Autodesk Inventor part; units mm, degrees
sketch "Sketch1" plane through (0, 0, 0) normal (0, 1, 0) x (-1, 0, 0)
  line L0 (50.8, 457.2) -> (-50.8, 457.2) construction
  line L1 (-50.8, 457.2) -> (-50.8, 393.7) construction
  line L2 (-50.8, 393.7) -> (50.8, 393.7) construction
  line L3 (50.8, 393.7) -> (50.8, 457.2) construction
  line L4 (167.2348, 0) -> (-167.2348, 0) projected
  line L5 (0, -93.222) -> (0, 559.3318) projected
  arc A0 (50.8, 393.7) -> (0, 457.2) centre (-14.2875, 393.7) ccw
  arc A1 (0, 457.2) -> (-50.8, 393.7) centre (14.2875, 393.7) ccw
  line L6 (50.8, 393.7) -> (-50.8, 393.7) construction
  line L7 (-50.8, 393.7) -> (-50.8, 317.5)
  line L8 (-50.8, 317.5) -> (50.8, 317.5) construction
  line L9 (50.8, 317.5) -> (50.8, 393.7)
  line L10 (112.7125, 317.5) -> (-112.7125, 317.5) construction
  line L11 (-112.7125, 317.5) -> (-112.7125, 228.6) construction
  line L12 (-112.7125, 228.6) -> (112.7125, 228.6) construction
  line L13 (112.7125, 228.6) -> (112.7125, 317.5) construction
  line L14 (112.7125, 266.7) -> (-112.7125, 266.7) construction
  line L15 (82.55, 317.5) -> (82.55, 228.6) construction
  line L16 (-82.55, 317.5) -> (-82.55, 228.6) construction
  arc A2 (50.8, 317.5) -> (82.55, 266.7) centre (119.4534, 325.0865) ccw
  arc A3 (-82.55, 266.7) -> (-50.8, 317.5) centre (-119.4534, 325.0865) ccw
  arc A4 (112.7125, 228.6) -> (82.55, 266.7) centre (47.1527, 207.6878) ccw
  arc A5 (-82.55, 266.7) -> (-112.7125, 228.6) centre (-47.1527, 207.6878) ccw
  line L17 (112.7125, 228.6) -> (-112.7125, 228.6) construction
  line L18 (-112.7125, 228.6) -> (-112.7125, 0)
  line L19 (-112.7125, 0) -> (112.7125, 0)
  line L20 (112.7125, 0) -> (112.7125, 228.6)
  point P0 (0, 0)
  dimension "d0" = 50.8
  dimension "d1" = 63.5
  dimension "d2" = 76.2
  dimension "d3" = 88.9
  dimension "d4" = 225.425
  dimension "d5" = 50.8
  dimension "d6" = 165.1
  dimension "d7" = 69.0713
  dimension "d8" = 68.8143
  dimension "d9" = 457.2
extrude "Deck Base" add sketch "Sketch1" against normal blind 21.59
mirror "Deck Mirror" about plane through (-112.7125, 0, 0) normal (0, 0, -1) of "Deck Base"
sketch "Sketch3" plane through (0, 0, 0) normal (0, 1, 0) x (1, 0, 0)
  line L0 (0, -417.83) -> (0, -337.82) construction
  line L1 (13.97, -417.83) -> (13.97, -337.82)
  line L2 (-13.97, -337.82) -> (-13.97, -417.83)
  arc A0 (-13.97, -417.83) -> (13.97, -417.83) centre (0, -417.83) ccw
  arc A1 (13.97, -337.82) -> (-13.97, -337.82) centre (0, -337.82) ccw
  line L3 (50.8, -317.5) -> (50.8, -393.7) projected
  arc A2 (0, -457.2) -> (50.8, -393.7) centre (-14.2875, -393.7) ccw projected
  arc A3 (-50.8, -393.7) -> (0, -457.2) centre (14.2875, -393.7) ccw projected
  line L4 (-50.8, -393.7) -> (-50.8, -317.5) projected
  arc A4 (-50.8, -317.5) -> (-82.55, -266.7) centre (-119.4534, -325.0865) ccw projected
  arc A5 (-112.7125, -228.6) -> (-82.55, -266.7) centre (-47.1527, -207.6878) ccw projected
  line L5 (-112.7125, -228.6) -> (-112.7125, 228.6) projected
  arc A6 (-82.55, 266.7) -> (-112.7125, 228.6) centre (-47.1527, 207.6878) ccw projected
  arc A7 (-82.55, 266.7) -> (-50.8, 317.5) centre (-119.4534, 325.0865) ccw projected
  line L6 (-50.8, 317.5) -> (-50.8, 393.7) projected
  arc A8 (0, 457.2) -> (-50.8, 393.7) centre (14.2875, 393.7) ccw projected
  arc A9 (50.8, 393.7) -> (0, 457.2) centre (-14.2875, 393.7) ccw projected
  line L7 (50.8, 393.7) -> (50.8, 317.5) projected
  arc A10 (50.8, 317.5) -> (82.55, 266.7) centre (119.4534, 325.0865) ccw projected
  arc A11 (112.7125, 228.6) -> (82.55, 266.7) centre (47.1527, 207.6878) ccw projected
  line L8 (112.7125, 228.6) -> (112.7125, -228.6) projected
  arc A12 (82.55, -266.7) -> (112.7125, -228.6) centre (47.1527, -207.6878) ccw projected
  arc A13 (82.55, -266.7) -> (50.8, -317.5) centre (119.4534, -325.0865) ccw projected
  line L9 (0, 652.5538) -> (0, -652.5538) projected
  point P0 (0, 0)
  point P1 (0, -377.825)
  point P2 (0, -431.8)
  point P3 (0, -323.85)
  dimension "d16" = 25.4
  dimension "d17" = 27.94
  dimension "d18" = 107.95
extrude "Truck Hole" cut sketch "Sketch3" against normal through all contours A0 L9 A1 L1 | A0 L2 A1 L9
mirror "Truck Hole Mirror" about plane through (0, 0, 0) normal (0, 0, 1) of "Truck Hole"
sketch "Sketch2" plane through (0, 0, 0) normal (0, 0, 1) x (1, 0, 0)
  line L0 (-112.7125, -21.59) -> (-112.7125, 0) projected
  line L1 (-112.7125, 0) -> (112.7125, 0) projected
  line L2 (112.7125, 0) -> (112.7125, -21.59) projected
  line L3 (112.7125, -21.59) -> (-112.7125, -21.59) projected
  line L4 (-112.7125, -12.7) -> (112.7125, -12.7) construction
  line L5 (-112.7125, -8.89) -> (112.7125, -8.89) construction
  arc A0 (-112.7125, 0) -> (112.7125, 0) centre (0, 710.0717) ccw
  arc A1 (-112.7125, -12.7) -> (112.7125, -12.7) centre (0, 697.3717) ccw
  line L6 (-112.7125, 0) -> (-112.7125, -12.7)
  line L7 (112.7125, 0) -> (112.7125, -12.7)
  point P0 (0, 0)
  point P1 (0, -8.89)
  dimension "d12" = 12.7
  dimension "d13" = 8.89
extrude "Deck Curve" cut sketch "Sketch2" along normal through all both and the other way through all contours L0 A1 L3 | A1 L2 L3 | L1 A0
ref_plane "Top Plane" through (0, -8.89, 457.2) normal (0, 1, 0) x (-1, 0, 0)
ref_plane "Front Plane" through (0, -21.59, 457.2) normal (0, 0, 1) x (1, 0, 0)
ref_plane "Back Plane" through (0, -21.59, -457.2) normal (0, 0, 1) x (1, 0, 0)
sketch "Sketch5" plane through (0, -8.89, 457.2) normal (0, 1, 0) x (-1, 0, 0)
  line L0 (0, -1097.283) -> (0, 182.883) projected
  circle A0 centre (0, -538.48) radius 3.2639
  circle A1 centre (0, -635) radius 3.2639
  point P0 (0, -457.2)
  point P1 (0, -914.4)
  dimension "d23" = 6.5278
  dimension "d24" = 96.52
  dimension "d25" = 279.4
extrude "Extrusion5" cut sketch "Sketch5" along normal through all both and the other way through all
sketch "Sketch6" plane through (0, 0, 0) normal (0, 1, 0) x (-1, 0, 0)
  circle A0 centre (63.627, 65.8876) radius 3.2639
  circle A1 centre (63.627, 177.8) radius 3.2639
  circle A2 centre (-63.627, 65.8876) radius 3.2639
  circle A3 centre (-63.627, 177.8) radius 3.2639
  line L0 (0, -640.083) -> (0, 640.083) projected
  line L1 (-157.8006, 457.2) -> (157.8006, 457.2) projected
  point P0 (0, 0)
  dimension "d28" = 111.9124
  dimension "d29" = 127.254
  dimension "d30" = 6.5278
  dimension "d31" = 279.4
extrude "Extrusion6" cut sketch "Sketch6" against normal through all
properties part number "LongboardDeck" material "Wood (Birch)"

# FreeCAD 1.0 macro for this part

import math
import FreeCAD as App
import Part
import Sketcher

V = App.Vector
Q = App.Units.Quantity

doc = App.newDocument("Part")
body = doc.addObject("PartDesign::Body", "Body")

# Sketch on XZ plane
sketch1 = doc.addObject("Sketcher::SketchObject", "Sketch")
body.addObject(sketch1)
sketch1.AttachmentSupport = (doc.XZ_Plane, [""])
sketch1.MapMode = "FlatFace"
sketch1.addGeometry(Part.LineSegment(V(-113, 0, 0), V(-113, 229, 0)), False)
sketch1.addGeometry(Part.ArcOfCircle(Part.Circle(V(-47, 208, 0), V(0, 0, 1), 69), math.radians(121), math.radians(162)), False)
sketch1.addGeometry(Part.ArcOfCircle(Part.Circle(V(-119, 325, 0), V(0, 0, 1), 69), math.radians(-58), math.radians(-6)), False)
sketch1.addGeometry(Part.LineSegment(V(-51, 318, 0), V(-51, 394, 0)), False)
sketch1.addGeometry(Part.ArcOfCircle(Part.Circle(V(14, 394, 0), V(0, 0, 1), 65), math.radians(103), math.radians(180)), False)
sketch1.addGeometry(Part.ArcOfCircle(Part.Circle(V(-14, 394, 0), V(0, 0, 1), 65), math.radians(0), math.radians(77)), False)
sketch1.addGeometry(Part.LineSegment(V(51, 394, 0), V(51, 318, 0)), False)
sketch1.addGeometry(Part.ArcOfCircle(Part.Circle(V(119, 325, 0), V(0, 0, 1), 69), math.radians(-174), math.radians(-122)), False)
sketch1.addGeometry(Part.ArcOfCircle(Part.Circle(V(47, 208, 0), V(0, 0, 1), 69), math.radians(18), math.radians(59)), False)
sketch1.addGeometry(Part.LineSegment(V(113, 229, 0), V(113, 0, 0)), False)
sketch1.addGeometry(Part.LineSegment(V(113, 0, 0), V(-113, 0, 0)), False)
sketch1.addConstraint(Sketcher.Constraint("Coincident", 0, 2, 1, 2))
sketch1.addConstraint(Sketcher.Constraint("Coincident", 1, 1, 2, 1))
sketch1.addConstraint(Sketcher.Constraint("Coincident", 2, 2, 3, 1))
sketch1.addConstraint(Sketcher.Constraint("Tangent", 3, 2, 4, 2))
sketch1.addConstraint(Sketcher.Constraint("Coincident", 4, 1, 5, 2))
sketch1.addConstraint(Sketcher.Constraint("Tangent", 5, 1, 6, 1))
sketch1.addConstraint(Sketcher.Constraint("Coincident", 6, 2, 7, 1))
sketch1.addConstraint(Sketcher.Constraint("Coincident", 7, 2, 8, 2))
sketch1.addConstraint(Sketcher.Constraint("Coincident", 8, 1, 9, 1))
sketch1.addConstraint(Sketcher.Constraint("Coincident", 9, 2, 10, 1))
sketch1.addConstraint(Sketcher.Constraint("Coincident", 10, 2, 0, 1))
sketch1.addConstraint(Sketcher.Constraint("Vertical", 0))
sketch1.addConstraint(Sketcher.Constraint("Vertical", 3))
sketch1.addConstraint(Sketcher.Constraint("Vertical", 6))
sketch1.addConstraint(Sketcher.Constraint("Vertical", 9))
sketch1.addConstraint(Sketcher.Constraint("Horizontal", 10))
sketch1.addConstraint(Sketcher.Constraint("Equal", 4, 5))
sketch1.addConstraint(Sketcher.Constraint("Equal", 2, 7))
sketch1.addConstraint(Sketcher.Constraint("Equal", 1, 8))
sketch1.addConstraint(Sketcher.Constraint("Symmetric", 9, 2, 10, 2, -1, 1))
sketch1.addConstraint(Sketcher.Constraint("Symmetric", 4, 3, 5, 3, -2))
sketch1.addConstraint(Sketcher.Constraint("Symmetric", 2, 3, 7, 3, -2))
sketch1.addConstraint(Sketcher.Constraint("Symmetric", 1, 3, 8, 3, -2))
sketch1.addConstraint(Sketcher.Constraint("DistanceY", 3, 1, 3, 2, Q("3 in")))
sketch1.addConstraint(Sketcher.Constraint("DistanceX", 2, 2, -1, 1, Q("2 in")))
sketch1.addConstraint(Sketcher.Constraint("DistanceY", -1, 1, 4, 1, Q("18 in")))
sketch1.addConstraint(Sketcher.Constraint("DistanceY", 1, 1, 2, 2, Q("2 in")))
sketch1.addConstraint(Sketcher.Constraint("DistanceY", 0, 2, 5, 3, Q("6.5 in")))
sketch1.addConstraint(Sketcher.Constraint("DistanceY", 4, 3, 4, 1, Q("2.5 in")))
sketch1.addConstraint(Sketcher.Constraint("DistanceX", 10, 2, 10, 1, Q("8.875 in")))
sketch1.addConstraint(Sketcher.Constraint("Radius", 1, 68.8143))
sketch1.addConstraint(Sketcher.Constraint("Radius", 2, 69.0713))
sketch1.addConstraint(Sketcher.Constraint("DistanceX", 1, 1, -1, 1, Q("3.25 in")))
pad1 = doc.addObject("PartDesign::Pad", "Pad")
body.addObject(pad1)
pad1.Profile = sketch1
pad1.Length = Q("0.85 in")
doc.recompute()

mirrored = doc.addObject("PartDesign::Mirrored", "Mirrored")
body.addObject(mirrored)
mirrored.Originals = [pad1]
mirrored.MirrorPlane = (doc.XY_Plane, [""])
body.Tip = mirrored

# Sketch on XZ plane
sketch2 = doc.addObject("Sketcher::SketchObject", "Sketch001")
body.addObject(sketch2)
sketch2.AttachmentSupport = (doc.XZ_Plane, [""])
sketch2.MapMode = "FlatFace"
sketch2.addGeometry(Part.LineSegment(V(14, 418, 0), V(14, 338, 0)), False)
sketch2.addGeometry(Part.ArcOfCircle(Part.Circle(V(0, 338, 0), V(0, 0, 1), 14), math.radians(180), math.radians(360)), False)
sketch2.addGeometry(Part.LineSegment(V(-14, 338, 0), V(-14, 418, 0)), False)
sketch2.addGeometry(Part.ArcOfCircle(Part.Circle(V(0, 418, 0), V(0, 0, 1), 14), math.radians(0), math.radians(180)), False)
sketch2.addConstraint(Sketcher.Constraint("Tangent", 0, 2, 1, 2))
sketch2.addConstraint(Sketcher.Constraint("Tangent", 1, 1, 2, 1))
sketch2.addConstraint(Sketcher.Constraint("Tangent", 2, 2, 3, 2))
sketch2.addConstraint(Sketcher.Constraint("Tangent", 3, 1, 0, 1))
sketch2.addConstraint(Sketcher.Constraint("Vertical", 0))
sketch2.addConstraint(Sketcher.Constraint("Vertical", 2))
sketch2.addConstraint(Sketcher.Constraint("PointOnObject", 1, 3, -2))
sketch2.addConstraint(Sketcher.Constraint("Radius", 1, Q("0.55 in")))
sketch2.addConstraint(Sketcher.Constraint("DistanceY", 0, 2, 0, 1, Q("3.15 in")))
sketch2.addConstraint(Sketcher.Constraint("DistanceY", -1, 1, 1, 3, Q("13.3 in")))
pocket1 = doc.addObject("PartDesign::Pocket", "Pocket")
body.addObject(pocket1)
pocket1.Profile = sketch2
pocket1.Type = "ThroughAll"
pocket1.Reversed = True
doc.recompute()

mirrored2 = doc.addObject("PartDesign::Mirrored", "Mirrored001")
body.addObject(mirrored2)
mirrored2.Originals = [pocket1]
mirrored2.MirrorPlane = (doc.XY_Plane, [""])
body.Tip = mirrored2

# Sketch on XY plane
sketch3 = doc.addObject("Sketcher::SketchObject", "Sketch002")
body.addObject(sketch3)
sketch3.AttachmentSupport = (doc.XY_Plane, [""])
sketch3.MapMode = "FlatFace"
sketch3.addGeometry(Part.LineSegment(V(-113, -13, 0), V(-113, -22, 0)), False)
sketch3.addGeometry(Part.LineSegment(V(-113, -22, 0), V(0, -22, 0)), False)
sketch3.addGeometry(Part.ArcOfCircle(Part.Circle(V(0, 697, 0), V(0, 0, 1), 719), math.radians(-99.02), math.radians(-90)), False)
sketch3.addGeometry(Part.ArcOfCircle(Part.Circle(V(0, 697, 0), V(0, 0, 1), 719), math.radians(-90), math.radians(-80.98)), False)
sketch3.addGeometry(Part.LineSegment(V(0, -22, 0), V(113, -22, 0)), False)
sketch3.addGeometry(Part.LineSegment(V(113, -22, 0), V(113, -13, 0)), False)
sketch3.addGeometry(Part.LineSegment(V(113, 0, 0), V(-113, 0, 0)), False)
sketch3.addGeometry(Part.ArcOfCircle(Part.Circle(V(0, 710, 0), V(0, 0, 1), 719), math.radians(-99.02), math.radians(-80.98)), False)
sketch3.addConstraint(Sketcher.Constraint("Coincident", 0, 2, 1, 1))
sketch3.addConstraint(Sketcher.Constraint("Tangent", 1, 2, 2, 2))
sketch3.addConstraint(Sketcher.Constraint("Coincident", 2, 1, 0, 1))
sketch3.addConstraint(Sketcher.Constraint("Tangent", 3, 1, 4, 1))
sketch3.addConstraint(Sketcher.Constraint("Coincident", 4, 2, 5, 1))
sketch3.addConstraint(Sketcher.Constraint("Coincident", 5, 2, 3, 2))
sketch3.addConstraint(Sketcher.Constraint("Coincident", 6, 1, 7, 2))
sketch3.addConstraint(Sketcher.Constraint("Coincident", 7, 1, 6, 2))
sketch3.addConstraint(Sketcher.Constraint("Vertical", 0))
sketch3.addConstraint(Sketcher.Constraint("Horizontal", 1))
sketch3.addConstraint(Sketcher.Constraint("Horizontal", 4))
sketch3.addConstraint(Sketcher.Constraint("Vertical", 5))
sketch3.addConstraint(Sketcher.Constraint("Horizontal", 6))
sketch3.addConstraint(Sketcher.Constraint("Coincident", 3, 3, 2, 3))
sketch3.addConstraint(Sketcher.Constraint("Equal", 2, 3))
sketch3.addConstraint(Sketcher.Constraint("Equal", 3, 7))
sketch3.addConstraint(Sketcher.Constraint("PointOnObject", 2, 3, -2))
sketch3.addConstraint(Sketcher.Constraint("PointOnObject", 7, 3, -2))
sketch3.addConstraint(Sketcher.Constraint("PointOnObject", 6, 1, -1))
sketch3.addConstraint(Sketcher.Constraint("Vertical", 5, 2, 6, 1))
sketch3.addConstraint(Sketcher.Constraint("Equal", 1, 4))
sketch3.addConstraint(Sketcher.Constraint("DistanceY", 0, 2, 0, 1, Q("0.35 in")))
sketch3.addConstraint(Sketcher.Constraint("DistanceY", 2, 1, -1, 1, Q("0.5 in")))
sketch3.addConstraint(Sketcher.Constraint("DistanceX", 1, 1, 1, 2, Q("4.4375 in")))
pocket2 = doc.addObject("PartDesign::Pocket", "Pocket001")
body.addObject(pocket2)
pocket2.Profile = sketch3
pocket2.Type = "ThroughAll"
pocket2.Midplane = True

# Sketch on XZ plane
sketch4 = doc.addObject("Sketcher::SketchObject", "Sketch003")
body.addObject(sketch4)
sketch4.AttachmentSupport = (doc.XZ_Plane, [""])
sketch4.MapMode = "FlatFace"
sketch4.AttachmentOffset = App.Placement(V(0, 0, 0.35 * 25.4), App.Rotation())
sketch4.addGeometry(Part.Circle(V(0, -177.8, 0), V(0, 0, 1), 3.3), False)
sketch4.addGeometry(Part.Circle(V(0, -81.3, 0), V(0, 0, 1), 3.3), False)
sketch4.addConstraint(Sketcher.Constraint("Equal", 0, 1))
sketch4.addConstraint(Sketcher.Constraint("PointOnObject", 0, 3, -2))
sketch4.addConstraint(Sketcher.Constraint("PointOnObject", 1, 3, -2))
sketch4.addConstraint(Sketcher.Constraint("Diameter", 0, Q("0.257 in")))
sketch4.addConstraint(Sketcher.Constraint("DistanceY", 0, 3, 1, 3, Q("3.8 in")))
sketch4.addConstraint(Sketcher.Constraint("DistanceY", 0, 3, -1, 1, Q("7 in")))
pocket3 = doc.addObject("PartDesign::Pocket", "Pocket002")
body.addObject(pocket3)
pocket3.Profile = sketch4
pocket3.Type = "ThroughAll"
pocket3.Midplane = True

# Sketch on XZ plane
sketch5 = doc.addObject("Sketcher::SketchObject", "Sketch004")
body.addObject(sketch5)
sketch5.AttachmentSupport = (doc.XZ_Plane, [""])
sketch5.MapMode = "FlatFace"
sketch5.addGeometry(Part.Circle(V(-63.6, 65.9, 0), V(0, 0, 1), 3.3), False)
sketch5.addGeometry(Part.Circle(V(-63.6, 177.8, 0), V(0, 0, 1), 3.3), False)
sketch5.addGeometry(Part.Circle(V(63.6, 65.9, 0), V(0, 0, 1), 3.3), False)
sketch5.addGeometry(Part.Circle(V(63.6, 177.8, 0), V(0, 0, 1), 3.3), False)
sketch5.addConstraint(Sketcher.Constraint("Equal", 0, 1))
sketch5.addConstraint(Sketcher.Constraint("Equal", 1, 2))
sketch5.addConstraint(Sketcher.Constraint("Equal", 2, 3))
sketch5.addConstraint(Sketcher.Constraint("Symmetric", 0, 3, 2, 3, -2))
sketch5.addConstraint(Sketcher.Constraint("Symmetric", 1, 3, 3, 3, -2))
sketch5.addConstraint(Sketcher.Constraint("Vertical", 0, 3, 1, 3))
sketch5.addConstraint(Sketcher.Constraint("Diameter", 0, Q("0.257 in")))
sketch5.addConstraint(Sketcher.Constraint("DistanceX", 0, 3, 2, 3, Q("5.01 in")))
sketch5.addConstraint(Sketcher.Constraint("DistanceY", -1, 1, 1, 3, Q("7 in")))
sketch5.addConstraint(Sketcher.Constraint("DistanceY", 0, 3, 1, 3, Q("4.406 in")))
pocket4 = doc.addObject("PartDesign::Pocket", "Pocket003")
body.addObject(pocket4)
pocket4.Profile = sketch5
pocket4.Type = "ThroughAll"
pocket4.Reversed = True

doc.recompute()
